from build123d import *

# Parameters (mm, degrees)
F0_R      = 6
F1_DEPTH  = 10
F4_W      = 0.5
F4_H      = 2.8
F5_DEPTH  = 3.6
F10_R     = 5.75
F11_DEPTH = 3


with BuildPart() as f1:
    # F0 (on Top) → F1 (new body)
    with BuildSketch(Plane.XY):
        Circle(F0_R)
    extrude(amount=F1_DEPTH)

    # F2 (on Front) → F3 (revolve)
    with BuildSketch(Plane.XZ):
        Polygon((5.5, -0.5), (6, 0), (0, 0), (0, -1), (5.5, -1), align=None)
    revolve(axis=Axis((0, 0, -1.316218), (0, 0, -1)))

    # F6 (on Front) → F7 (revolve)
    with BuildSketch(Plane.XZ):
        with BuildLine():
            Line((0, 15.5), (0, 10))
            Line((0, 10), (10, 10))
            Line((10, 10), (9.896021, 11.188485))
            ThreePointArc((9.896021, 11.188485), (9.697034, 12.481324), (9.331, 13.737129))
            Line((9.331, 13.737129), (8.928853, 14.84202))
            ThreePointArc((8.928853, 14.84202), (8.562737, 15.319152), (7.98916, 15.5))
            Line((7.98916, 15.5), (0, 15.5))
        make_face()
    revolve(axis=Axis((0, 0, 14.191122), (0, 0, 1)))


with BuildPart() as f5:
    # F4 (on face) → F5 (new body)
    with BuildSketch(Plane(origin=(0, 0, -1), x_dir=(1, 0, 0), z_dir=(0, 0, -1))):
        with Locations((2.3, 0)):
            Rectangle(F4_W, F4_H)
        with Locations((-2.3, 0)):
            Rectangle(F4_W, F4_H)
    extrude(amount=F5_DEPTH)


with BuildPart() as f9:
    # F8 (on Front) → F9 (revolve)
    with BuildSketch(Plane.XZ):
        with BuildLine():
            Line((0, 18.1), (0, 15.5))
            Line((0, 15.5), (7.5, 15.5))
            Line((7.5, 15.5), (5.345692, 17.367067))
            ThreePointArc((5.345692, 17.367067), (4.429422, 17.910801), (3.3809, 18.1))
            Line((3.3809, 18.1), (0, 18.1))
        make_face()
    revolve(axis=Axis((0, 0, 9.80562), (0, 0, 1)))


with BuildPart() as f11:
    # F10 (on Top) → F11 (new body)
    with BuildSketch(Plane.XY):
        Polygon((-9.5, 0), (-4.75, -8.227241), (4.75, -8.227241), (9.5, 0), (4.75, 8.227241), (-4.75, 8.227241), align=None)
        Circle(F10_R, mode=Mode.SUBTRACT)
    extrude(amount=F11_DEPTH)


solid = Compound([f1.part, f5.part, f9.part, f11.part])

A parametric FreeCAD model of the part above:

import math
import FreeCAD as App
import Part
import Sketcher

V = App.Vector
Q = App.Units.Quantity


def add_polygon(sketch, points):
    """Adds a closed chain of lines whose ends are joined by coincident constraints."""
    first, n = sketch.GeometryCount, len(points)
    for a, b in zip(points, points[1:] + points[:1]):
        sketch.addGeometry(Part.LineSegment(App.Vector(*a, 0), App.Vector(*b, 0)), False)
    for i in range(n):
        sketch.addConstraint(Sketcher.Constraint("Coincident", first + i, 2, first + (i + 1) % n, 1))

doc = App.newDocument("Part")
params = doc.addObject("Spreadsheet::Sheet", "Params")
for row, (alias, value) in enumerate([
    ("sketch1_diameter", "12 mm"),
    ("pad1_length", "10 mm"),
    ("sketch2_width", "6 mm"),
    ("sketch2_height", "1 mm"),
    ("sketch2_width2", "5.5 mm"),
    ("revolution_angle", "360 deg"),
    ("sketch3_radius", "1 mm"),
    ("sketch3_width", "10 mm"),
    ("sketch3_height", "5.5 mm"),
    ("revolution2_angle", "360 deg"),
    ("sketch4_width", "0.5 mm"),
    ("sketch4_height", "2.8 mm"),
    ("pad2_length", "3.6 mm"),
    ("sketch5_radius", "2.999999 mm"),
    ("sketch5_width", "7.5 mm"),
    ("sketch5_height", "2.6 mm"),
    ("revolution3_angle", "360 deg"),
    ("sketch6_diameter", "11.5 mm"),
    ("sketch6_width", "9.5 mm"),
    ("sketch6_length", "9.5 mm"),
    ("pad3_length", "3 mm"),
], start=1):
    params.set(f"A{row}", alias)
    params.set(f"B{row}", "=" + value)
    params.setAlias(f"B{row}", alias)

body = doc.addObject("PartDesign::Body", "Body")

# Sketch on XY plane
sketch1 = body.newObject("Sketcher::SketchObject", "Sketch")
sketch1.AttachmentSupport = (doc.getObject("XY_Plane"), [""])
sketch1.MapMode = "FlatFace"
sketch1.addGeometry(Part.Circle(V(0, 0, 0), V(0, 0, 1), 6), False)
sketch1.addConstraint([
    Sketcher.Constraint("Coincident", 0, 3, -1, 1),
    Sketcher.Constraint("Diameter", 0, 12.0),
])
sketch1.setExpression("Constraints[1]", "Params.sketch1_diameter")
pad1 = body.newObject("PartDesign::Pad", "Pad")
pad1.Profile = sketch1
pad1.setExpression("Length", "Params.pad1_length")

# Sketch on XZ plane
sketch2 = body.newObject("Sketcher::SketchObject", "Sketch001")
sketch2.AttachmentSupport = (doc.getObject("XZ_Plane"), [""])
sketch2.MapMode = "FlatFace"
add_polygon(sketch2, [(5.5, -0.5), (6, 0), (0, 0), (0, -1), (5.5, -1)])  # lines 0-4
sketch2.addConstraint([
    Sketcher.Constraint("Horizontal", 1),
    Sketcher.Constraint("Vertical", 2),
    Sketcher.Constraint("Horizontal", 3),
    Sketcher.Constraint("Vertical", 4),
    Sketcher.Constraint("Coincident", 1, 2, -1, 1),
    Sketcher.Constraint("DistanceX", 1, 2, 1, 1, 6.0),
    Sketcher.Constraint("DistanceY", 2, 2, 2, 1, 1.0),
    Sketcher.Constraint("Angle", 0, Q("45 deg")),
    Sketcher.Constraint("DistanceX", 3, 1, 3, 2, 5.5),
])
sketch2.setExpression("Constraints[10]", "Params.sketch2_width")
sketch2.setExpression("Constraints[11]", "Params.sketch2_height")
sketch2.setExpression("Constraints[13]", "Params.sketch2_width2")
revolution = body.newObject("PartDesign::Revolution", "Revolution")
revolution.Profile = sketch2
revolution.ReferenceAxis = (sketch2, ["V_Axis"])
revolution.setExpression("Angle", "Params.revolution_angle")

# Sketch on XZ plane
sketch3 = body.newObject("Sketcher::SketchObject", "Sketch002")
sketch3.AttachmentSupport = (doc.getObject("XZ_Plane"), [""])
sketch3.MapMode = "FlatFace"
sketch3.addGeometry([
    Part.LineSegment(V(0, 15.5, 0), V(0, 10, 0)),  # 0
    Part.LineSegment(V(0, 10, 0), V(10, 10, 0)),  # 1
    Part.LineSegment(V(10, 10, 0), V(9.896021, 11.188485, 0)),  # 2
    Part.ArcOfCircle(Part.Circle(V(-0.065916, 10.316929, 0), V(0, 0, 1), 9.99999), math.radians(4.999998), math.radians(20.000012)),  # 3
    Part.LineSegment(V(9.331, 13.737129, 0), V(8.928853, 14.84202, 0)),  # 4
    Part.ArcOfCircle(Part.Circle(V(7.989161, 14.5, 0), V(0, 0, 1), 1), math.radians(19.999973), math.radians(90.000037)),  # 5
    Part.LineSegment(V(7.98916, 15.5, 0), V(0, 15.5, 0)),  # 6
], False)
sketch3.addConstraint([
    Sketcher.Constraint("Coincident", 0, 2, 1, 1),
    Sketcher.Constraint("Coincident", 1, 2, 2, 1),
    Sketcher.Constraint("Coincident", 2, 2, 3, 1),
    Sketcher.Constraint("Coincident", 3, 2, 4, 1),
    Sketcher.Constraint("Coincident", 4, 2, 5, 1),
    Sketcher.Constraint("Coincident", 5, 2, 6, 1),
    Sketcher.Constraint("Coincident", 6, 2, 0, 1),
    Sketcher.Constraint("Vertical", 0),
    Sketcher.Constraint("Horizontal", 1),
    Sketcher.Constraint("Horizontal", 6),
    Sketcher.Constraint("PointOnObject", 0, 2, -2),
    Sketcher.Constraint("Radius", 5, 1.0),
    Sketcher.Constraint("DistanceX", 1, 1, 1, 2, 10.0),
    Sketcher.Constraint("DistanceY", 0, 2, 0, 1, 5.5),
    Sketcher.Constraint("DistanceY", -1, 1, 0, 2, 10.0),
    Sketcher.Constraint("Radius", 3, 9.99999),
    Sketcher.Constraint("DistanceX", -1, 1, 3, 2, 9.331),
    Sketcher.Constraint("Distance", 4, 1.1758),
    Sketcher.Constraint("DistanceX", 6, 2, 6, 1, 7.98916),
    Sketcher.Constraint("DistanceY", 3, 3, 3, 2, 3.4202),
    Sketcher.Constraint("DistanceY", -1, 1, 3, 3, 10.316929),
    Sketcher.Constraint("DistanceX", -1, 1, 5, 3, 7.989161),
    Sketcher.Constraint("DistanceX", -1, 1, 2, 2, 9.896021),
])
sketch3.setExpression("Constraints[11]", "Params.sketch3_radius")
sketch3.setExpression("Constraints[12]", "Params.sketch3_width")
sketch3.setExpression("Constraints[13]", "Params.sketch3_height")
revolution2 = body.newObject("PartDesign::Revolution", "Revolution001")
revolution2.Profile = sketch3
revolution2.ReferenceAxis = (sketch3, ["V_Axis"])
revolution2.setExpression("Angle", "Params.revolution2_angle")
body2 = doc.addObject("PartDesign::Body", "Body001")
body2.AllowCompound = True

# Sketch on XY plane
sketch4 = body2.newObject("Sketcher::SketchObject", "Sketch003")
sketch4.AttachmentSupport = (doc.getObject("XY_Plane001"), [""])
sketch4.MapMode = "FlatFace"
sketch4.AttachmentOffset = App.Placement(V(0, 0, -1), App.Rotation())
add_polygon(sketch4, [(2, -1.4), (2, 1.4), (2.5, 1.4), (2.5, -1.4)])  # lines 0-3
add_polygon(sketch4, [(-2.5, -1.4), (-2.5, 1.4), (-2, 1.4), (-2, -1.4)])  # lines 4-7
sketch4.addConstraint([
    Sketcher.Constraint("Vertical", 0),
    Sketcher.Constraint("Horizontal", 1),
    Sketcher.Constraint("Vertical", 2),
    Sketcher.Constraint("Horizontal", 3),
    Sketcher.Constraint("Vertical", 4),
    Sketcher.Constraint("Horizontal", 5),
    Sketcher.Constraint("Vertical", 6),
    Sketcher.Constraint("Horizontal", 7),
    Sketcher.Constraint("Symmetric", 2, 2, 4, 2, -1, 1),
    Sketcher.Constraint("Symmetric", 0, 2, 6, 2, -1, 1),
    Sketcher.Constraint("Horizontal", 1, 2, 4, 2),
    Sketcher.Constraint("DistanceX", 1, 1, 1, 2, 0.5),
    Sketcher.Constraint("DistanceY", 0, 1, 0, 2, 2.8),
    Sketcher.Constraint("DistanceX", 4, 2, 0, 2, 4.6),
])
sketch4.setExpression("Constraints[19]", "Params.sketch4_width")
sketch4.setExpression("Constraints[20]", "Params.sketch4_height")
pad2 = body2.newObject("PartDesign::Pad", "Pad001")
pad2.Profile = sketch4
pad2.setExpression("Length", "Params.pad2_length")
pad2.Reversed = True
body3 = doc.addObject("PartDesign::Body", "Body002")

# Sketch on XZ plane
sketch5 = body3.newObject("Sketcher::SketchObject", "Sketch004")
sketch5.AttachmentSupport = (doc.getObject("XZ_Plane002"), [""])
sketch5.MapMode = "FlatFace"
sketch5.addGeometry([
    Part.LineSegment(V(0, 18.1, 0), V(0, 15.5, 0)),  # 0
    Part.LineSegment(V(0, 15.5, 0), V(7.5, 15.5, 0)),  # 1
    Part.LineSegment(V(7.5, 15.5, 0), V(5.3, 17.4, 0)),  # 2
    Part.ArcOfCircle(Part.Circle(V(3.4, 15.1, 0), V(0, 0, 1), 3), math.radians(49), math.radians(90)),  # 3
    Part.LineSegment(V(3.4, 18.1, 0), V(0, 18.1, 0)),  # 4
], False)
sketch5.addConstraint([
    Sketcher.Constraint("Coincident", 0, 2, 1, 1),
    Sketcher.Constraint("Coincident", 1, 2, 2, 1),
    Sketcher.Constraint("Tangent", 2, 2, 3, 1),
    Sketcher.Constraint("Tangent", 3, 2, 4, 1),
    Sketcher.Constraint("Coincident", 4, 2, 0, 1),
    Sketcher.Constraint("Vertical", 0),
    Sketcher.Constraint("Horizontal", 1),
    Sketcher.Constraint("Horizontal", 4),
    Sketcher.Constraint("PointOnObject", 0, 2, -2),
    Sketcher.Constraint("Radius", 3, 2.999999),
    Sketcher.Constraint("DistanceX", 1, 1, 1, 2, 7.5),
    Sketcher.Constraint("DistanceY", 0, 2, 0, 1, 2.6),
    Sketcher.Constraint("DistanceY", -1, 1, 3, 3, 15.100001),
    Sketcher.Constraint("DistanceX", 4, 2, 4, 1, 3.3809),
])
sketch5.setExpression("Constraints[9]", "Params.sketch5_radius")
sketch5.setExpression("Constraints[10]", "Params.sketch5_width")
sketch5.setExpression("Constraints[11]", "Params.sketch5_height")
revolution3 = body3.newObject("PartDesign::Revolution", "Revolution002")
revolution3.Profile = sketch5
revolution3.ReferenceAxis = (sketch5, ["V_Axis"])
revolution3.setExpression("Angle", "Params.revolution3_angle")
body4 = doc.addObject("PartDesign::Body", "Body003")

# Sketch on XY plane
sketch6 = body4.newObject("Sketcher::SketchObject", "Sketch005")
sketch6.AttachmentSupport = (doc.getObject("XY_Plane003"), [""])
sketch6.MapMode = "FlatFace"
add_polygon(sketch6, [(-10, 0), (-5, -8), (5, -8), (10, 0), (5, 8), (-5, 8)])  # lines 0-5
sketch6.addGeometry(Part.Circle(V(0, 0, 0), V(0, 0, 1), 6), False)  # 6
sketch6.addConstraint([
    Sketcher.Constraint("Horizontal", 1),
    Sketcher.Constraint("Horizontal", 4),
    Sketcher.Constraint("Coincident", 6, 3, -1, 1),
    Sketcher.Constraint("Symmetric", 0, 2, 3, 2, -1, 1),
    Sketcher.Constraint("Symmetric", 2, 2, 5, 2, -1, 1),
    Sketcher.Constraint("PointOnObject", 2, 2, -1),
    Sketcher.Constraint("Parallel", 2, 5),
    Sketcher.Constraint("Vertical", 1, 2, 3, 2),
    Sketcher.Constraint("Diameter", 6, 11.5),
    Sketcher.Constraint("Angle", 0, Q("-59.999999 deg")),
    Sketcher.Constraint("DistanceX", 1, 1, 1, 2, 9.5),
    Sketcher.Constraint("Distance", 0, 9.5),
])
sketch6.setExpression("Constraints[14]", "Params.sketch6_diameter")
sketch6.setExpression("Constraints[16]", "Params.sketch6_width")
sketch6.setExpression("Constraints[17]", "Params.sketch6_length")
pad3 = body4.newObject("PartDesign::Pad", "Pad002")
pad3.Profile = sketch6
pad3.setExpression("Length", "Params.pad3_length")

doc.recompute()
